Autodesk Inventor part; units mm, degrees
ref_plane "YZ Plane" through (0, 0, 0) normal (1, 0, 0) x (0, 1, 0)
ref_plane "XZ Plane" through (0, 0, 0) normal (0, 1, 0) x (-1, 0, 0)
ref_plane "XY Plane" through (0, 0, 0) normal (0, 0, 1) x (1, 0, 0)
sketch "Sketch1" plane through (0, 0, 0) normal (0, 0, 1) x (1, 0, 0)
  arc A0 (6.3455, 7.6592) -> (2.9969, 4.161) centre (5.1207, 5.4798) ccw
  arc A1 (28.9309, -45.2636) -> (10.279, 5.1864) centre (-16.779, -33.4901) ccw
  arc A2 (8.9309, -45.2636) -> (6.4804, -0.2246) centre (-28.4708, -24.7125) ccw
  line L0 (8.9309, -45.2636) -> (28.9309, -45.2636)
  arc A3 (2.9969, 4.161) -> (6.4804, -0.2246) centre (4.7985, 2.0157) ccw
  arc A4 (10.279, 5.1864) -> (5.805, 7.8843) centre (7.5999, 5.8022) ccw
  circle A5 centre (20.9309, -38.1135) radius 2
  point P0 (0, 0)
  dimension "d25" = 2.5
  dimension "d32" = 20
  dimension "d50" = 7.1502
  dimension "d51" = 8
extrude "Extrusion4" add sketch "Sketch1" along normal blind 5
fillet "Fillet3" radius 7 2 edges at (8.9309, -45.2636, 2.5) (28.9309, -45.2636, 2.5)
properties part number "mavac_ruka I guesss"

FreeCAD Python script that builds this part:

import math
import FreeCAD as App
import Part
import Sketcher
from FreeCAD import Vector
Q = App.Units.Quantity


def edges_at(feature, points):
    """Names of the edges that pass closest to the given points."""
    edges = feature.Shape.Edges
    near = lambda p: min(range(len(edges)), key=lambda i: edges[i].distToShape(Part.Vertex(*p))[0])
    return sorted({f"Edge{near(p) + 1}" for p in points})

doc = App.newDocument("Part")
body = doc.addObject("PartDesign::Body", "Body")

# Sketch on XY plane
sketch1 = doc.addObject("Sketcher::SketchObject", "Sketch")
body.addObject(sketch1)
sketch1.AttachmentSupport = (doc.XY_Plane, [""])
sketch1.MapMode = "FlatFace"
sketch1.addGeometry([
    Part.ArcOfCircle(Part.Circle(Vector(7.6, 5.8, 0), Vector(0, 0, 1), 2.7), math.radians(-13), math.radians(131)),  # 0
    Part.ArcOfCircle(Part.Circle(Vector(5.1, 5.5, 0), Vector(0, 0, 1), 2.5), math.radians(74), math.radians(212)),  # 1
    Part.ArcOfCircle(Part.Circle(Vector(4.8, 2, 0), Vector(0, 0, 1), 2.8), math.radians(130), math.radians(307)),  # 2
    Part.ArcOfCircle(Part.Circle(Vector(-28.5, -24.7, 0), Vector(0, 0, 1), 42.7), math.radians(-29), math.radians(35)),  # 3
    Part.LineSegment(Vector(8.9, -45.3, 0), Vector(28.9, -45.3, 0)),  # 4
    Part.ArcOfCircle(Part.Circle(Vector(-16.8, -33.5, 0), Vector(0, 0, 1), 47.2), math.radians(-14), math.radians(55)),  # 5
    Part.Circle(Vector(20.9, -38.1, 0), Vector(0, 0, 1), 2),  # 6
], False)
sketch1.addConstraint([
    Sketcher.Constraint("Coincident", 0, 2, 1, 1),
    Sketcher.Constraint("Coincident", 1, 2, 2, 1),
    Sketcher.Constraint("Coincident", 2, 2, 3, 2),
    Sketcher.Constraint("Coincident", 3, 1, 4, 1),
    Sketcher.Constraint("Coincident", 4, 2, 5, 1),
    Sketcher.Constraint("Coincident", 5, 2, 0, 1),
    Sketcher.Constraint("Horizontal", 4),
    Sketcher.Constraint("Radius", 1, Q("2.5 mm")),
    Sketcher.Constraint("DistanceX", 4, 1, 4, 2, Q("20 mm")),
    Sketcher.Constraint("Diameter", 6, Q("4 mm")),
    Sketcher.Constraint("DistanceX", 6, 3, 4, 2, Q("8 mm")),
    Sketcher.Constraint("DistanceY", 3, 1, 6, 3, Q("7.15 mm")),
    Sketcher.Constraint("Radius", 0, Q("2.749 mm")),
    Sketcher.Constraint("Radius", 3, Q("42.676 mm")),
    Sketcher.Constraint("DistanceX", -1, 1, 0, 3, Q("7.6 mm")),
    Sketcher.Constraint("Radius", 2, Q("2.8014 mm")),
    Sketcher.Constraint("Radius", 5, Q("47.2018 mm")),
    Sketcher.Constraint("DistanceY", 5, 3, -1, 1, Q("33.49 mm")),
    Sketcher.Constraint("DistanceY", 5, 3, 1, 3, Q("38.97 mm")),
    Sketcher.Constraint("DistanceX", 5, 3, 6, 3, Q("37.71 mm")),
    Sketcher.Constraint("DistanceX", 5, 3, -1, 1, Q("16.779 mm")),
    Sketcher.Constraint("DistanceX", -1, 1, 0, 2, Q("5.805 mm")),
    Sketcher.Constraint("DistanceY", -1, 1, 1, 2, Q("4.161 mm")),
    Sketcher.Constraint("DistanceY", 2, 3, 1, 3, Q("3.464 mm")),
    Sketcher.Constraint("DistanceY", 6, 3, 3, 3, Q("13.401 mm")),
    Sketcher.Constraint("DistanceX", 1, 2, 0, 3, Q("4.603 mm")),
])
pad1 = doc.addObject("PartDesign::Pad", "Pad")
body.addObject(pad1)
pad1.Profile = sketch1
pad1.Length = 5
doc.recompute()

fillet = doc.addObject("PartDesign::Fillet", "Fillet")
body.addObject(fillet)
fillet.Base = (pad1, edges_at(pad1, [(8.931, -45.264, 2.5), (28.931, -45.264, 2.5)]))
fillet.Radius = 7

doc.recompute()
